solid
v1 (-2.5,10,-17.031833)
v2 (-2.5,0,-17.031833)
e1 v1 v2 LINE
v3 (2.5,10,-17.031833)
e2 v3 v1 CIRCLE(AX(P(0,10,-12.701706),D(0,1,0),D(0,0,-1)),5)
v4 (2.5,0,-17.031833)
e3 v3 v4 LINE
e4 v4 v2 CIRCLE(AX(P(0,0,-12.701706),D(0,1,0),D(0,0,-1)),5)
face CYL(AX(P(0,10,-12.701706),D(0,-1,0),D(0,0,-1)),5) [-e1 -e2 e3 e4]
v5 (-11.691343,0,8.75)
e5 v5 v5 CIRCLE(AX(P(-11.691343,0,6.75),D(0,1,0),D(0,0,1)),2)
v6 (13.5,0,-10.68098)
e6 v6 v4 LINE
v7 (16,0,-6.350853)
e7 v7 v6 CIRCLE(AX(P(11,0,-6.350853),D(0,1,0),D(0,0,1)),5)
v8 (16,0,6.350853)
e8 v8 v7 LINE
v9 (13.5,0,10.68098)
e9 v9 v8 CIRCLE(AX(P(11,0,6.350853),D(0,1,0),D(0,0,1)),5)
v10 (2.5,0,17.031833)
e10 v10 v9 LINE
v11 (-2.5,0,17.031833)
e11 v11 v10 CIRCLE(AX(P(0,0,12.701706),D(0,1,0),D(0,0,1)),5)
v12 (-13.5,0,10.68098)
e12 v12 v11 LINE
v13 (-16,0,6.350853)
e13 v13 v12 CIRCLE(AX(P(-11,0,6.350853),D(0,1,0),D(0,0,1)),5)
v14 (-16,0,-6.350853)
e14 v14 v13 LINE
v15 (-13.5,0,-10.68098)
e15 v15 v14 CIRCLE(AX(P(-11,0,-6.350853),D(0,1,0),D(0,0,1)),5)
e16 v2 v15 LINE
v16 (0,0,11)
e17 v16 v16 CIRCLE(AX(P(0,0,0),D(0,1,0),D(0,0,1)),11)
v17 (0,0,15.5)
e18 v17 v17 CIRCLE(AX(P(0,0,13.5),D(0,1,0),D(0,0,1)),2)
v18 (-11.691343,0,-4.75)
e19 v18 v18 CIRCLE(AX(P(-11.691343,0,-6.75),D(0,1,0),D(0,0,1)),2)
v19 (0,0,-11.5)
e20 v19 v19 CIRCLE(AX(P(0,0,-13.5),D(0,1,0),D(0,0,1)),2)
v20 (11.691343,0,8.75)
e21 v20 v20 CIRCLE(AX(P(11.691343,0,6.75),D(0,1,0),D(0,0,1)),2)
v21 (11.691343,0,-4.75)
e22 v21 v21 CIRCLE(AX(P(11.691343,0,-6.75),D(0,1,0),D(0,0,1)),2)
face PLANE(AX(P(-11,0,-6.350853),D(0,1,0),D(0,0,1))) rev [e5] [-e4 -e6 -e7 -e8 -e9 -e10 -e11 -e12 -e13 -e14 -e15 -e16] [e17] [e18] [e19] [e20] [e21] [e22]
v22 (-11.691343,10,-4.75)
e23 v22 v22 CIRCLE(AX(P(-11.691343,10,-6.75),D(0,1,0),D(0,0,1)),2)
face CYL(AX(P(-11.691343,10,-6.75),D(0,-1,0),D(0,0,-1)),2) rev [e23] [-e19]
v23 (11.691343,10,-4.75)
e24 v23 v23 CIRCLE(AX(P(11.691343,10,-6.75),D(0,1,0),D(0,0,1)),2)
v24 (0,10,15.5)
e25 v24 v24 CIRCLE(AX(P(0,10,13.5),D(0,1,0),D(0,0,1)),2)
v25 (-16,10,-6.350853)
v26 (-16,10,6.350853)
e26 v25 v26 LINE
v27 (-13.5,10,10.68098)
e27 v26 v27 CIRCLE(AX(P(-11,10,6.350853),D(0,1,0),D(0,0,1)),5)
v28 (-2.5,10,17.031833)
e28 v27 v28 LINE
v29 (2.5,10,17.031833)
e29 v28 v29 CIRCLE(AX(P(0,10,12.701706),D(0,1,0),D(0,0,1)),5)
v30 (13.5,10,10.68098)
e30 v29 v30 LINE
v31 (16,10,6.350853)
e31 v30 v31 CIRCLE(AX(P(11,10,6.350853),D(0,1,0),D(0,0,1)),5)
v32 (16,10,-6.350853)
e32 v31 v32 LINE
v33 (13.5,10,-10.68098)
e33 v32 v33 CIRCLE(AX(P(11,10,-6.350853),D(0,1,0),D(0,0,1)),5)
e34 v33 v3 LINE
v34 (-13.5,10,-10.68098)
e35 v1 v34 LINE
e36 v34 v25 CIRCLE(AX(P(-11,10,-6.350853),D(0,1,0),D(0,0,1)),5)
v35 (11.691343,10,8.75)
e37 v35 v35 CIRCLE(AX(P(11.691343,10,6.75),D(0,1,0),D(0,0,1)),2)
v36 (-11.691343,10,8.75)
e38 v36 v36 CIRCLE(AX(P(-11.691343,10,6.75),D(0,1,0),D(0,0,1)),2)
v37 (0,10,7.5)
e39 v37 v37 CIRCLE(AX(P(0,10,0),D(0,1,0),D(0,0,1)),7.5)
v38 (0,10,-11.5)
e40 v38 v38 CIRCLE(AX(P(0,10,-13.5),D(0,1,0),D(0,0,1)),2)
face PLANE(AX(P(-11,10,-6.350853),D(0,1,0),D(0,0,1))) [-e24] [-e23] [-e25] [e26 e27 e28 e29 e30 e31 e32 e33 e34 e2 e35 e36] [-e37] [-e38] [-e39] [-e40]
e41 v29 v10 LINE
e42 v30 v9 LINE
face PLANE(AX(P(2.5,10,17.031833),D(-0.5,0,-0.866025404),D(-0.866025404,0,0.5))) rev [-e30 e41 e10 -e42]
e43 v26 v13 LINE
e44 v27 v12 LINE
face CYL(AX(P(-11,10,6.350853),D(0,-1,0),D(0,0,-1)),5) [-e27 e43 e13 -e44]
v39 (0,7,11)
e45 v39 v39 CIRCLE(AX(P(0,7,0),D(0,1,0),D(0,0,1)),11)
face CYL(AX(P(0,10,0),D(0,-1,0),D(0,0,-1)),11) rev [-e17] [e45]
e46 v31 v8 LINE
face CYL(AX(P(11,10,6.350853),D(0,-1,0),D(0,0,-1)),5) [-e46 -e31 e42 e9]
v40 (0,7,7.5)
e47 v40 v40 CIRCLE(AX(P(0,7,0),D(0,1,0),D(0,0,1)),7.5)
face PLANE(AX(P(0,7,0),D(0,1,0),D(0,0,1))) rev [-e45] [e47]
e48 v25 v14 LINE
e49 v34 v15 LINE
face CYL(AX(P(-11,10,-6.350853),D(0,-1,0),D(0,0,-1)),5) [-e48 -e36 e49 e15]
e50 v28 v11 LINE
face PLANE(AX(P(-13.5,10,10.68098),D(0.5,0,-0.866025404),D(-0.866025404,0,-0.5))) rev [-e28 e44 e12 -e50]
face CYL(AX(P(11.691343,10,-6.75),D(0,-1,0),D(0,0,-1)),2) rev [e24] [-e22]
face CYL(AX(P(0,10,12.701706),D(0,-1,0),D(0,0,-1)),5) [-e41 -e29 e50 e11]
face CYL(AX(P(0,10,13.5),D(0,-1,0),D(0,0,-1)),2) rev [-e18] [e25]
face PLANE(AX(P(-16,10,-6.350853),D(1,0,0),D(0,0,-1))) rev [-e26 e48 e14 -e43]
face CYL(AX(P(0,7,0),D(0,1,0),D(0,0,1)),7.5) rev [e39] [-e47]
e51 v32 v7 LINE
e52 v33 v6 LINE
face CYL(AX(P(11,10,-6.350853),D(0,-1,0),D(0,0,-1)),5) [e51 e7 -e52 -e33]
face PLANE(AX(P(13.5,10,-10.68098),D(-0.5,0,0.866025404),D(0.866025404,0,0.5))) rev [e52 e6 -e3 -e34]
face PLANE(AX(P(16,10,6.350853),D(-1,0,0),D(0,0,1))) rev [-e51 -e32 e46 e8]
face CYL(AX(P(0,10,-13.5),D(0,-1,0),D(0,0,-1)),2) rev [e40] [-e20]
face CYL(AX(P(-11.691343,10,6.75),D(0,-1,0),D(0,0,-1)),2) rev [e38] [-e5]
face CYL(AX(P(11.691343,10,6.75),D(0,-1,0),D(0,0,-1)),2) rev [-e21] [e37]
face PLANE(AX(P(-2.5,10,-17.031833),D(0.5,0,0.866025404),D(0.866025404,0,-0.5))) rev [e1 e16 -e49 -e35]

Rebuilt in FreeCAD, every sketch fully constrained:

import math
import FreeCAD as App
import Part
import Sketcher

V = App.Vector
Q = App.Units.Quantity

doc = App.newDocument("Part")
body = doc.addObject("PartDesign::Body", "Body")

sketch1 = body.newObject("Sketcher::SketchObject", "Sketch")
sketch1.AttachmentSupport = (doc.getObject("XZ_Plane"), [""])
sketch1.MapMode = "FlatFace"
sketch1.addGeometry([
    Part.LineSegment(V(-2.5, -17, 0), V(-13.5, -10.7, 0)),
    Part.ArcOfCircle(Part.Circle(V(-11, -6.4, 0), V(0, 0, 1), 5), math.radians(180), math.radians(240)),
    Part.LineSegment(V(-16, -6.4, 0), V(-16, 6.4, 0)),
    Part.ArcOfCircle(Part.Circle(V(-11, 6.4, 0), V(0, 0, 1), 5), math.radians(120), math.radians(180)),
    Part.LineSegment(V(-13.5, 10.7, 0), V(-2.5, 17, 0)),
    Part.ArcOfCircle(Part.Circle(V(0, 12.7, 0), V(0, 0, 1), 5), math.radians(60), math.radians(120)),
    Part.LineSegment(V(2.5, 17, 0), V(13.5, 10.7, 0)),
    Part.ArcOfCircle(Part.Circle(V(11, 6.4, 0), V(0, 0, 1), 5), math.radians(0), math.radians(60)),
    Part.LineSegment(V(16, 6.4, 0), V(16, -6.4, 0)),
    Part.ArcOfCircle(Part.Circle(V(11, -6.4, 0), V(0, 0, 1), 5), math.radians(-60), math.radians(0)),
    Part.LineSegment(V(13.5, -10.7, 0), V(2.5, -17, 0)),
    Part.ArcOfCircle(Part.Circle(V(0, -12.7, 0), V(0, 0, 1), 5), math.radians(-120), math.radians(-60)),
    Part.Circle(V(0, 13.5, 0), V(0, 0, 1), 2),
    Part.Circle(V(-11.7, 6.8, 0), V(0, 0, 1), 2),
    Part.Circle(V(11.7, 6.8, 0), V(0, 0, 1), 2),
    Part.Circle(V(-11.7, -6.8, 0), V(0, 0, 1), 2),
    Part.Circle(V(0, 0, 0), V(0, 0, 1), 11),
    Part.Circle(V(0, -13.5, 0), V(0, 0, 1), 2),
    Part.Circle(V(11.7, -6.8, 0), V(0, 0, 1), 2),
], False)
sketch1.addConstraint([
    Sketcher.Constraint("Tangent", 0, 2, 1, 2),
    Sketcher.Constraint("Tangent", 1, 1, 2, 1),
    Sketcher.Constraint("Tangent", 2, 2, 3, 2),
    Sketcher.Constraint("Tangent", 3, 1, 4, 1),
    Sketcher.Constraint("Tangent", 4, 2, 5, 2),
    Sketcher.Constraint("Tangent", 5, 1, 6, 1),
    Sketcher.Constraint("Tangent", 6, 2, 7, 2),
    Sketcher.Constraint("Tangent", 7, 1, 8, 1),
    Sketcher.Constraint("Tangent", 8, 2, 9, 2),
    Sketcher.Constraint("Tangent", 9, 1, 10, 1),
    Sketcher.Constraint("Tangent", 10, 2, 11, 2),
    Sketcher.Constraint("Tangent", 11, 1, 0, 1),
    Sketcher.Constraint("Vertical", 2),
    Sketcher.Constraint("Vertical", 8),
    Sketcher.Constraint("Coincident", 16, 3, -1, 1),
    Sketcher.Constraint("Equal", 1, 3),
    Sketcher.Constraint("Equal", 3, 5),
    Sketcher.Constraint("Equal", 5, 7),
    Sketcher.Constraint("Equal", 7, 9),
    Sketcher.Constraint("Equal", 9, 11),
    Sketcher.Constraint("Equal", 12, 13),
    Sketcher.Constraint("Equal", 13, 14),
    Sketcher.Constraint("Equal", 14, 15),
    Sketcher.Constraint("Equal", 15, 17),
    Sketcher.Constraint("Equal", 17, 18),
    Sketcher.Constraint("Symmetric", 1, 3, 7, 3, -1, 1),
    Sketcher.Constraint("Symmetric", 5, 3, 11, 3, -1, 1),
    Sketcher.Constraint("Symmetric", 14, 3, 15, 3, -1, 1),
    Sketcher.Constraint("Symmetric", 12, 3, 17, 3, -1, 1),
    Sketcher.Constraint("Symmetric", 13, 3, 18, 3, -1, 1),
    Sketcher.Constraint("Symmetric", 13, 3, 14, 3, -2),
    Sketcher.Constraint("Symmetric", 4, 2, 5, 1, -2),
    Sketcher.Constraint("PointOnObject", 12, 3, -2),
    Sketcher.Constraint("Parallel", 4, 10),
    Sketcher.Constraint("Diameter", 12, 4.0),
    Sketcher.Constraint("Diameter", 16, 22.0),
    Sketcher.Constraint("Radius", 1, 5.0),
    Sketcher.Constraint("Angle", 0, Q("150 deg")),
    Sketcher.Constraint("DistanceX", 1, 3, -1, 1, 11.0),
    Sketcher.Constraint("DistanceY", -1, 1, 12, 3, 13.5),
    Sketcher.Constraint("DistanceY", 15, 3, 13, 3, 13.5),
    Sketcher.Constraint("DistanceY", 2, 1, 2, 2, 12.701706),
    Sketcher.Constraint("DistanceX", 13, 3, -1, 1, 11.691343),
])
pad1 = body.newObject("PartDesign::Pad", "Pad")
pad1.Profile = sketch1
pad1.Length = 10
pad1.Reversed = True

sketch2 = body.newObject("Sketcher::SketchObject", "Sketch001")
sketch2.AttachmentSupport = (doc.getObject("XZ_Plane"), [""])
sketch2.MapMode = "FlatFace"
sketch2.AttachmentOffset = App.Placement(V(0, 0, -7), App.Rotation())
sketch2.addGeometry([
    Part.Circle(V(0, 0, 0), V(0, 0, 1), 11),
    Part.Circle(V(0, 0, 0), V(0, 0, 1), 8),
], False)
sketch2.addConstraint([
    Sketcher.Constraint("Coincident", 0, 3, -1, 1),
    Sketcher.Constraint("Coincident", 1, 3, -1, 1),
    Sketcher.Constraint("Diameter", 0, 22.0),
    Sketcher.Constraint("Diameter", 1, 15.0),
])
pad2 = body.newObject("PartDesign::Pad", "Pad001")
pad2.Profile = sketch2
pad2.Length = 3
pad2.Reversed = True

doc.recompute()
